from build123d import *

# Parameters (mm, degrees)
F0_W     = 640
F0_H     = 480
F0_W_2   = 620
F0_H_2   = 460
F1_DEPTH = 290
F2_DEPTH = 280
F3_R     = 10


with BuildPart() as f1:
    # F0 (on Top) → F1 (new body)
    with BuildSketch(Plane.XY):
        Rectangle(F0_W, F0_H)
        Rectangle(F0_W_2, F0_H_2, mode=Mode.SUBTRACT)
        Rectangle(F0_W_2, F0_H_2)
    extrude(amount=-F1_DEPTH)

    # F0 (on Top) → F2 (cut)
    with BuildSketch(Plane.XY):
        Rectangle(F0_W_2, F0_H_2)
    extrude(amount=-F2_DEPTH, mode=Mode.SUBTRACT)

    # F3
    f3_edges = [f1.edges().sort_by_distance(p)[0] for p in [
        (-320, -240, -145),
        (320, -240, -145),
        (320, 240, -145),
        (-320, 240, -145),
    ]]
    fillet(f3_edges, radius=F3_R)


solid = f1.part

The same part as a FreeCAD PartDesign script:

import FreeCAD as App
import Part
import Sketcher
from FreeCAD import Vector


def edges_at(feature, points):
    """Names of the edges that pass closest to the given points."""
    edges = feature.Shape.Edges
    near = lambda p: min(range(len(edges)), key=lambda i: edges[i].distToShape(Part.Vertex(*p))[0])
    return sorted({f"Edge{near(p) + 1}" for p in points})


def add_polygon(sketch, points):
    """Adds a closed chain of lines whose ends are joined by coincident constraints."""
    first, n = sketch.GeometryCount, len(points)
    for a, b in zip(points, points[1:] + points[:1]):
        sketch.addGeometry(Part.LineSegment(App.Vector(*a, 0), App.Vector(*b, 0)), False)
    for i in range(n):
        sketch.addConstraint(Sketcher.Constraint("Coincident", first + i, 2, first + (i + 1) % n, 1))

doc = App.newDocument("Part")
params = doc.addObject("Spreadsheet::Sheet", "Params")
for row, (alias, value) in enumerate([
    ("sketch1_width", "640 mm"),
    ("sketch1_height", "480 mm"),
    ("pad1_length", "290 mm"),
    ("sketch2_width", "620 mm"),
    ("sketch2_height", "460 mm"),
    ("pocket1_length", "280 mm"),
    ("fillet_radius", "10 mm"),
], start=1):
    params.set(f"A{row}", alias)
    params.set(f"B{row}", "=" + value)
    params.setAlias(f"B{row}", alias)

body = doc.addObject("PartDesign::Body", "Body")

# Sketch on XY plane
sketch1 = doc.addObject("Sketcher::SketchObject", "Sketch")
body.addObject(sketch1)
sketch1.AttachmentSupport = (doc.XY_Plane, [""])
sketch1.MapMode = "FlatFace"
add_polygon(sketch1, [(-320, 240), (-320, -240), (320, -240), (320, 240)])  # lines 0-3
sketch1.addConstraint(Sketcher.Constraint("Vertical", 0))
sketch1.addConstraint(Sketcher.Constraint("Horizontal", 1))
sketch1.addConstraint(Sketcher.Constraint("Vertical", 2))
sketch1.addConstraint(Sketcher.Constraint("Horizontal", 3))
sketch1.addConstraint(Sketcher.Constraint("Symmetric", 0, 2, 2, 2, -1, 1))
sketch1.addConstraint(Sketcher.Constraint("DistanceX", 1, 1, 1, 2, 640.0))
sketch1.addConstraint(Sketcher.Constraint("DistanceY", 0, 2, 0, 1, 480.0))
sketch1.setExpression("Constraints[9]", "Params.sketch1_width")
sketch1.setExpression("Constraints[10]", "Params.sketch1_height")
pad1 = doc.addObject("PartDesign::Pad", "Pad")
body.addObject(pad1)
pad1.Profile = sketch1
pad1.setExpression("Length", "Params.pad1_length")
pad1.Reversed = True

# Sketch on XY plane
sketch2 = doc.addObject("Sketcher::SketchObject", "Sketch001")
body.addObject(sketch2)
sketch2.AttachmentSupport = (doc.XY_Plane, [""])
sketch2.MapMode = "FlatFace"
add_polygon(sketch2, [(-310, 230), (-310, -230), (310, -230), (310, 230)])  # lines 0-3
sketch2.addConstraint(Sketcher.Constraint("Vertical", 0))
sketch2.addConstraint(Sketcher.Constraint("Horizontal", 1))
sketch2.addConstraint(Sketcher.Constraint("Vertical", 2))
sketch2.addConstraint(Sketcher.Constraint("Horizontal", 3))
sketch2.addConstraint(Sketcher.Constraint("Symmetric", 0, 2, 2, 2, -1, 1))
sketch2.addConstraint(Sketcher.Constraint("DistanceX", 1, 1, 1, 2, 620.0))
sketch2.addConstraint(Sketcher.Constraint("DistanceY", 0, 2, 0, 1, 460.0))
sketch2.setExpression("Constraints[9]", "Params.sketch2_width")
sketch2.setExpression("Constraints[10]", "Params.sketch2_height")
pocket1 = doc.addObject("PartDesign::Pocket", "Pocket")
body.addObject(pocket1)
pocket1.Profile = sketch2
pocket1.setExpression("Length", "Params.pocket1_length")
doc.recompute()

fillet = doc.addObject("PartDesign::Fillet", "Fillet")
body.addObject(fillet)
fillet.Base = (pocket1, edges_at(pocket1, [
    (-320, -240, -145),
    (320, -240, -145),
    (320, 240, -145),
    (-320, 240, -145),
]))
fillet.setExpression("Radius", "Params.fillet_radius")

doc.recompute()
